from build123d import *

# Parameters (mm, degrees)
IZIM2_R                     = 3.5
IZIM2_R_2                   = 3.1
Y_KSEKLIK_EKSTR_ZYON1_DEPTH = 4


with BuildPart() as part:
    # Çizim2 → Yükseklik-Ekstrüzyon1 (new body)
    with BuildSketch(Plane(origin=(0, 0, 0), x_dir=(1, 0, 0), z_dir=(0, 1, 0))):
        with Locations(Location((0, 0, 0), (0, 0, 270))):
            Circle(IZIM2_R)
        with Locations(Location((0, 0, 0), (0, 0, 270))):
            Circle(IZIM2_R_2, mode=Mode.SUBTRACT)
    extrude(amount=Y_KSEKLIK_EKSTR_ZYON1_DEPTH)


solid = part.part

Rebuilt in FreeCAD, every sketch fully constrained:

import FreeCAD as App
import Part
import Sketcher
from FreeCAD import Vector
Q = App.Units.Quantity

doc = App.newDocument("Part")
params = doc.addObject("Spreadsheet::Sheet", "Params")
for row, (alias, value) in enumerate([
    ("sketch1_diameter", "7 mm"),
    ("sketch1_diameter2", "6.2 mm"),
    ("pad1_length", "4 mm"),
], start=1):
    params.set(f"A{row}", alias)
    params.set(f"B{row}", "=" + value)
    params.setAlias(f"B{row}", alias)

body = doc.addObject("PartDesign::Body", "Body")

# Sketch on XZ plane
sketch1 = body.newObject("Sketcher::SketchObject", "Sketch")
sketch1.AttachmentSupport = (doc.getObject("XZ_Plane"), [""])
sketch1.MapMode = "FlatFace"
sketch1.addGeometry(Part.Circle(Vector(0, 0, 0), Vector(0, 0, 1), 3.5), False)
sketch1.addGeometry(Part.Circle(Vector(0, 0, 0), Vector(0, 0, 1), 3.1), False)
sketch1.addConstraint(Sketcher.Constraint("Coincident", 0, 3, -1, 1))
sketch1.addConstraint(Sketcher.Constraint("Coincident", 1, 3, -1, 1))
sketch1.addConstraint(Sketcher.Constraint("Diameter", 0, Q("7 mm")))
sketch1.addConstraint(Sketcher.Constraint("Diameter", 1, Q("6.2 mm")))
sketch1.setExpression("Constraints[2]", "Params.sketch1_diameter")
sketch1.setExpression("Constraints[3]", "Params.sketch1_diameter2")
pad1 = body.newObject("PartDesign::Pad", "Pad")
pad1.Profile = sketch1
pad1.setExpression("Length", "Params.pad1_length")
pad1.Reversed = True

doc.recompute()
